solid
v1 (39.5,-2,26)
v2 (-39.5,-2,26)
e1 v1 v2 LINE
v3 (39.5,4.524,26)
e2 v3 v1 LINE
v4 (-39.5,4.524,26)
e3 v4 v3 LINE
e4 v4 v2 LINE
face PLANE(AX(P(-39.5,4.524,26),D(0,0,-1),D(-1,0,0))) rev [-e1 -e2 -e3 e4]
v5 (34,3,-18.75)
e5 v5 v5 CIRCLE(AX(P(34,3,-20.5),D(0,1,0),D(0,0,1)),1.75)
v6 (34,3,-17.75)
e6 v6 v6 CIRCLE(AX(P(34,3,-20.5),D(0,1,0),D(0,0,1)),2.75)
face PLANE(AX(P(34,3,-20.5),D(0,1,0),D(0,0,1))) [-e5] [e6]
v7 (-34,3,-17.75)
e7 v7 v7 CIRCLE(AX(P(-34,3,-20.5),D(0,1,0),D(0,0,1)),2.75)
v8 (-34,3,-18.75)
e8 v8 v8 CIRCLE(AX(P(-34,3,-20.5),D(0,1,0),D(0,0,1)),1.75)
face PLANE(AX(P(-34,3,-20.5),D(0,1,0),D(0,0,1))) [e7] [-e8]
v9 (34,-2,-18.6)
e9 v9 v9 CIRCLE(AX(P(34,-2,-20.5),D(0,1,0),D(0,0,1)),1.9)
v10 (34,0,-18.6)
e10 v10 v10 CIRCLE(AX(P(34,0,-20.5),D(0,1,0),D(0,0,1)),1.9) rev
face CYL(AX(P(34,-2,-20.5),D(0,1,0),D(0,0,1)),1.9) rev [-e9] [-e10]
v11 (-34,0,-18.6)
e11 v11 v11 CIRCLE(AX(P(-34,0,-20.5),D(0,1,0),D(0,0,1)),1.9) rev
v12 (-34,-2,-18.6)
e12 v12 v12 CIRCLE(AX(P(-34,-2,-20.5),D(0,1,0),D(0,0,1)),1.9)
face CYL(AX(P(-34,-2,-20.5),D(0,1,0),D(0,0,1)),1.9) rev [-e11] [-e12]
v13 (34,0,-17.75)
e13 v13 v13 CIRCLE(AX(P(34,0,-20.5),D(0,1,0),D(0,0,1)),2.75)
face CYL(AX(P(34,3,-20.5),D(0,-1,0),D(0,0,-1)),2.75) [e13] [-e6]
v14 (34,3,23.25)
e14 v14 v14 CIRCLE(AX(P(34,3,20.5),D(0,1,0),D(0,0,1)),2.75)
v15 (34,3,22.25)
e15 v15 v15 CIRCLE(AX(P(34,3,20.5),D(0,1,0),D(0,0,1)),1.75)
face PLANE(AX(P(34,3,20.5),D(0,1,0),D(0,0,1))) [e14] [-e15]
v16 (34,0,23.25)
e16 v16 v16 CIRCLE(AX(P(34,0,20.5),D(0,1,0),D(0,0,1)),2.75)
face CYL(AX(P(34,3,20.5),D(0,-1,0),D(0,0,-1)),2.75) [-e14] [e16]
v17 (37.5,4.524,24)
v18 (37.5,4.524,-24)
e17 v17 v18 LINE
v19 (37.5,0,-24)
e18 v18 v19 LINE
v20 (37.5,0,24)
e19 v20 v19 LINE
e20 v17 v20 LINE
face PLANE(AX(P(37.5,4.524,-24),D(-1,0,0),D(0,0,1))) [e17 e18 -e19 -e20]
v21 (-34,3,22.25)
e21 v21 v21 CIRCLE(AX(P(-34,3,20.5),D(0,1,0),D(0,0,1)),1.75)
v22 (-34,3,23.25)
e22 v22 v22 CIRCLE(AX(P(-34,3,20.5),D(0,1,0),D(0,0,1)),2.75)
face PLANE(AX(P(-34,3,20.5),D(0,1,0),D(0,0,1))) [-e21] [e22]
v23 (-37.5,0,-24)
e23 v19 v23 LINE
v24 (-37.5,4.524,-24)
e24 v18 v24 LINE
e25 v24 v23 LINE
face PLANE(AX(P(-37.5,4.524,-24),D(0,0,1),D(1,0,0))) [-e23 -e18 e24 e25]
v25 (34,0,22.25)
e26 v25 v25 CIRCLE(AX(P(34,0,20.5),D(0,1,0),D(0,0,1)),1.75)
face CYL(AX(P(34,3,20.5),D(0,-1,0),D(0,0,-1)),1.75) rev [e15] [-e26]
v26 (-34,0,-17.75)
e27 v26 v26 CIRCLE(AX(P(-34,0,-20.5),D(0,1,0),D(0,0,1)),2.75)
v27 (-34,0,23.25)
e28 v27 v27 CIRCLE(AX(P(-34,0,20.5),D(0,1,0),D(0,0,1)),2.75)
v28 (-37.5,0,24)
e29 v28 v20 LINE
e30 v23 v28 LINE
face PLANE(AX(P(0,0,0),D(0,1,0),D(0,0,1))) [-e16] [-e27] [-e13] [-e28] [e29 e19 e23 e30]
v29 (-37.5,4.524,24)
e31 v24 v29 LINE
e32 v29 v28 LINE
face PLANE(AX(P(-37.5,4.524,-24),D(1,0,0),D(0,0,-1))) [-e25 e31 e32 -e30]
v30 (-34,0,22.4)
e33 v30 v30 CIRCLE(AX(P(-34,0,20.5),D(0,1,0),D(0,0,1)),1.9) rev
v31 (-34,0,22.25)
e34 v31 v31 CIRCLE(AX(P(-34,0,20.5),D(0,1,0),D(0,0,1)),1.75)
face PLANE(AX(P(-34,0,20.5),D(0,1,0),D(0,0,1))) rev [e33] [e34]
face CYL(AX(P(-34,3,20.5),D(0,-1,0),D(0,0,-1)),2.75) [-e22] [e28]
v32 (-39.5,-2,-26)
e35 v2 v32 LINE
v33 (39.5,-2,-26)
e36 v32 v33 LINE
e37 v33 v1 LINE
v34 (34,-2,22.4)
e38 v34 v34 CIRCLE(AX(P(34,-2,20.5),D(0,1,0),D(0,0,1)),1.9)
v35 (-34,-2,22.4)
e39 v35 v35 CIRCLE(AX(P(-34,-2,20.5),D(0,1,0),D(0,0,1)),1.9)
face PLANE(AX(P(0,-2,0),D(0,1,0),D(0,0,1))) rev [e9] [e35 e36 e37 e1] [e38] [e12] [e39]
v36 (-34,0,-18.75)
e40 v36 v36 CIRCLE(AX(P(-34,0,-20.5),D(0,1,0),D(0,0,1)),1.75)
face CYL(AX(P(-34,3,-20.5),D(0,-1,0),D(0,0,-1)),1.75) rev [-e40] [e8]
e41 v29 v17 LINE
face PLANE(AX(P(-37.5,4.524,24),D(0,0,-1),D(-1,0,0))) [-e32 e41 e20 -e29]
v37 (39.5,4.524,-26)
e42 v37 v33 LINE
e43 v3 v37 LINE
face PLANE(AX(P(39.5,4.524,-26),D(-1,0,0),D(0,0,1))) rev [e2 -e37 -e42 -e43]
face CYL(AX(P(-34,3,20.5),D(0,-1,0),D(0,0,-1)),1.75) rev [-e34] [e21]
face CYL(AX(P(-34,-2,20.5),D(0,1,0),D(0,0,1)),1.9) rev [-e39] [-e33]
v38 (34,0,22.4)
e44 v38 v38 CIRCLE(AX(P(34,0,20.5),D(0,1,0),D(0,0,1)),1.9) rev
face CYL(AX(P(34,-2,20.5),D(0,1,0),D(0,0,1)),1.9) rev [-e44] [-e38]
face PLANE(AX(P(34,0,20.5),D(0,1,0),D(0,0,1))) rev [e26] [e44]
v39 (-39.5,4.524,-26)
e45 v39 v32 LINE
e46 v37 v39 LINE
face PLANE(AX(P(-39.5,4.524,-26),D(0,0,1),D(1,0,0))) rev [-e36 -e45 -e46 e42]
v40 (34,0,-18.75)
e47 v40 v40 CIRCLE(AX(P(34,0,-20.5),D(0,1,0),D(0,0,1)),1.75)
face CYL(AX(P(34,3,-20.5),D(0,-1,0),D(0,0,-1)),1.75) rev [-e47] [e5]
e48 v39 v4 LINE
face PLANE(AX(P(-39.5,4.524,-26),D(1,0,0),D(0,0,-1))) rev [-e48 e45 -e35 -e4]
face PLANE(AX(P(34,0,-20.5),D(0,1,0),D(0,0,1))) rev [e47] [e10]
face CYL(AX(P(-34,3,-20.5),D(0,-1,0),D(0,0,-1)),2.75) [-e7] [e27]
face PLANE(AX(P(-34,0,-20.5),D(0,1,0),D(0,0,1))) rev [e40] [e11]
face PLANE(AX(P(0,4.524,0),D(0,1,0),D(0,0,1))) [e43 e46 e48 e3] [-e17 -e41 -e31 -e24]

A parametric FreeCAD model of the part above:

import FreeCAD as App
import Part
import Sketcher

V = App.Vector
Q = App.Units.Quantity


def add_polygon(sketch, points):
    """Adds a closed chain of lines whose ends are joined by coincident constraints."""
    first, n = sketch.GeometryCount, len(points)
    for a, b in zip(points, points[1:] + points[:1]):
        sketch.addGeometry(Part.LineSegment(App.Vector(*a, 0), App.Vector(*b, 0)), False)
    for i in range(n):
        sketch.addConstraint(Sketcher.Constraint("Coincident", first + i, 2, first + (i + 1) % n, 1))

doc = App.newDocument("Part")
params = doc.addObject("Spreadsheet::Sheet", "Params")
for row, (alias, value) in enumerate([
    ("sketch1_width", "79 mm"),
    ("sketch1_width2", "75 mm"),
    ("sketch1_height", "52 mm"),
    ("sketch1_height2", "48 mm"),
    ("pad1_length", "4.524 mm"),
    ("sketch2_width", "79 mm"),
    ("sketch2_height", "52 mm"),
    ("pad2_length", "2 mm"),
    ("sketch3_diameter", "3.8 mm"),
    ("pocket1_length", "2 mm"),
    ("sketch4_diameter", "5.5 mm"),
    ("sketch4_diameter2", "3.5 mm"),
    ("pad3_length", "3 mm"),
], start=1):
    params.set(f"A{row}", alias)
    params.set(f"B{row}", "=" + value)
    params.setAlias(f"B{row}", alias)

body = doc.addObject("PartDesign::Body", "Body")

sketch1 = doc.addObject("Sketcher::SketchObject", "Sketch")
body.addObject(sketch1)
sketch1.AttachmentSupport = (doc.XZ_Plane, [""])
sketch1.MapMode = "FlatFace"
add_polygon(sketch1, [(-40, -26), (-40, 26), (40, 26), (40, -26)])
add_polygon(sketch1, [(38, 24), (-38, 24), (-38, -24), (38, -24)])
sketch1.addConstraint([
    Sketcher.Constraint("Vertical", 0),
    Sketcher.Constraint("Horizontal", 1),
    Sketcher.Constraint("Vertical", 2),
    Sketcher.Constraint("Horizontal", 3),
    Sketcher.Constraint("Horizontal", 4),
    Sketcher.Constraint("Vertical", 5),
    Sketcher.Constraint("Horizontal", 6),
    Sketcher.Constraint("Vertical", 7),
    Sketcher.Constraint("Symmetric", 0, 2, 2, 2, -1, 1),
    Sketcher.Constraint("Symmetric", 4, 2, 6, 2, -1, 1),
    Sketcher.Constraint("DistanceX", 1, 1, 1, 2, Q("79 mm")),
    Sketcher.Constraint("DistanceX", 4, 2, 4, 1, Q("75 mm")),
    Sketcher.Constraint("DistanceY", 0, 1, 0, 2, Q("52 mm")),
    Sketcher.Constraint("DistanceY", 5, 2, 5, 1, Q("48 mm")),
])
sketch1.setExpression("Constraints[18]", "Params.sketch1_width")
sketch1.setExpression("Constraints[19]", "Params.sketch1_width2")
sketch1.setExpression("Constraints[20]", "Params.sketch1_height")
sketch1.setExpression("Constraints[21]", "Params.sketch1_height2")
pad1 = doc.addObject("PartDesign::Pad", "Pad")
body.addObject(pad1)
pad1.Profile = sketch1
pad1.setExpression("Length", "Params.pad1_length")
pad1.Reversed = True

sketch2 = doc.addObject("Sketcher::SketchObject", "Sketch001")
body.addObject(sketch2)
sketch2.AttachmentSupport = (doc.XZ_Plane, [""])
sketch2.MapMode = "FlatFace"
add_polygon(sketch2, [(-40, 26), (-40, -26), (40, -26), (40, 26)])
sketch2.addConstraint([
    Sketcher.Constraint("Vertical", 0),
    Sketcher.Constraint("Horizontal", 1),
    Sketcher.Constraint("Vertical", 2),
    Sketcher.Constraint("Horizontal", 3),
    Sketcher.Constraint("Symmetric", 0, 2, 2, 2, -1, 1),
    Sketcher.Constraint("DistanceX", 1, 1, 1, 2, Q("79 mm")),
    Sketcher.Constraint("DistanceY", 0, 2, 0, 1, Q("52 mm")),
])
sketch2.setExpression("Constraints[9]", "Params.sketch2_width")
sketch2.setExpression("Constraints[10]", "Params.sketch2_height")
pad2 = doc.addObject("PartDesign::Pad", "Pad001")
body.addObject(pad2)
pad2.Profile = sketch2
pad2.setExpression("Length", "Params.pad2_length")

sketch3 = doc.addObject("Sketcher::SketchObject", "Sketch002")
body.addObject(sketch3)
sketch3.AttachmentSupport = (doc.XZ_Plane, [""])
sketch3.MapMode = "FlatFace"
sketch3.addGeometry([
    Part.Circle(V(-34, -20.5, 0), V(0, 0, 1), 1.9),
    Part.Circle(V(34, -20.5, 0), V(0, 0, 1), 1.9),
    Part.Circle(V(34, 20.5, 0), V(0, 0, 1), 1.9),
    Part.Circle(V(-34, 20.5, 0), V(0, 0, 1), 1.9),
], False)
sketch3.addConstraint([
    Sketcher.Constraint("Equal", 0, 1),
    Sketcher.Constraint("Equal", 1, 2),
    Sketcher.Constraint("Equal", 2, 3),
    Sketcher.Constraint("Symmetric", 0, 3, 2, 3, -1, 1),
    Sketcher.Constraint("Symmetric", 1, 3, 3, 3, -1, 1),
    Sketcher.Constraint("Symmetric", 0, 3, 1, 3, -2),
    Sketcher.Constraint("Diameter", 0, Q("3.8 mm")),
    Sketcher.Constraint("DistanceX", 0, 3, -1, 1, Q("34 mm")),
    Sketcher.Constraint("DistanceY", 1, 3, 2, 3, Q("41 mm")),
])
sketch3.setExpression("Constraints[6]", "Params.sketch3_diameter")
pocket1 = doc.addObject("PartDesign::Pocket", "Pocket")
body.addObject(pocket1)
pocket1.Profile = sketch3
pocket1.setExpression("Length", "Params.pocket1_length")
pocket1.Reversed = True

sketch4 = doc.addObject("Sketcher::SketchObject", "Sketch003")
body.addObject(sketch4)
sketch4.AttachmentSupport = (doc.XZ_Plane, [""])
sketch4.MapMode = "FlatFace"
sketch4.addGeometry([
    Part.Circle(V(-34, 20.5, 0), V(0, 0, 1), 2.8),
    Part.Circle(V(-34, 20.5, 0), V(0, 0, 1), 1.8),
    Part.Circle(V(34, 20.5, 0), V(0, 0, 1), 2.8),
    Part.Circle(V(34, 20.5, 0), V(0, 0, 1), 1.8),
    Part.Circle(V(34, -20.5, 0), V(0, 0, 1), 2.8),
    Part.Circle(V(34, -20.5, 0), V(0, 0, 1), 1.8),
    Part.Circle(V(-34, -20.5, 0), V(0, 0, 1), 2.8),
    Part.Circle(V(-34, -20.5, 0), V(0, 0, 1), 1.8),
], False)
sketch4.addConstraint([
    Sketcher.Constraint("Coincident", 1, 3, 0, 3),
    Sketcher.Constraint("Coincident", 3, 3, 2, 3),
    Sketcher.Constraint("Coincident", 5, 3, 4, 3),
    Sketcher.Constraint("Coincident", 7, 3, 6, 3),
    Sketcher.Constraint("Equal", 0, 2),
    Sketcher.Constraint("Equal", 1, 3),
    Sketcher.Constraint("Equal", 2, 4),
    Sketcher.Constraint("Equal", 3, 5),
    Sketcher.Constraint("Equal", 4, 6),
    Sketcher.Constraint("Equal", 5, 7),
    Sketcher.Constraint("Symmetric", 0, 3, 4, 3, -1, 1),
    Sketcher.Constraint("Symmetric", 2, 3, 6, 3, -1, 1),
    Sketcher.Constraint("Symmetric", 0, 3, 2, 3, -2),
    Sketcher.Constraint("Diameter", 0, Q("5.5 mm")),
    Sketcher.Constraint("Diameter", 1, Q("3.5 mm")),
    Sketcher.Constraint("DistanceX", 0, 3, -1, 1, Q("34 mm")),
    Sketcher.Constraint("DistanceY", 4, 3, 2, 3, Q("41 mm")),
])
sketch4.setExpression("Constraints[13]", "Params.sketch4_diameter")
sketch4.setExpression("Constraints[14]", "Params.sketch4_diameter2")
pad3 = doc.addObject("PartDesign::Pad", "Pad002")
body.addObject(pad3)
pad3.Profile = sketch4
pad3.setExpression("Length", "Params.pad3_length")
pad3.Reversed = True

doc.recompute()
